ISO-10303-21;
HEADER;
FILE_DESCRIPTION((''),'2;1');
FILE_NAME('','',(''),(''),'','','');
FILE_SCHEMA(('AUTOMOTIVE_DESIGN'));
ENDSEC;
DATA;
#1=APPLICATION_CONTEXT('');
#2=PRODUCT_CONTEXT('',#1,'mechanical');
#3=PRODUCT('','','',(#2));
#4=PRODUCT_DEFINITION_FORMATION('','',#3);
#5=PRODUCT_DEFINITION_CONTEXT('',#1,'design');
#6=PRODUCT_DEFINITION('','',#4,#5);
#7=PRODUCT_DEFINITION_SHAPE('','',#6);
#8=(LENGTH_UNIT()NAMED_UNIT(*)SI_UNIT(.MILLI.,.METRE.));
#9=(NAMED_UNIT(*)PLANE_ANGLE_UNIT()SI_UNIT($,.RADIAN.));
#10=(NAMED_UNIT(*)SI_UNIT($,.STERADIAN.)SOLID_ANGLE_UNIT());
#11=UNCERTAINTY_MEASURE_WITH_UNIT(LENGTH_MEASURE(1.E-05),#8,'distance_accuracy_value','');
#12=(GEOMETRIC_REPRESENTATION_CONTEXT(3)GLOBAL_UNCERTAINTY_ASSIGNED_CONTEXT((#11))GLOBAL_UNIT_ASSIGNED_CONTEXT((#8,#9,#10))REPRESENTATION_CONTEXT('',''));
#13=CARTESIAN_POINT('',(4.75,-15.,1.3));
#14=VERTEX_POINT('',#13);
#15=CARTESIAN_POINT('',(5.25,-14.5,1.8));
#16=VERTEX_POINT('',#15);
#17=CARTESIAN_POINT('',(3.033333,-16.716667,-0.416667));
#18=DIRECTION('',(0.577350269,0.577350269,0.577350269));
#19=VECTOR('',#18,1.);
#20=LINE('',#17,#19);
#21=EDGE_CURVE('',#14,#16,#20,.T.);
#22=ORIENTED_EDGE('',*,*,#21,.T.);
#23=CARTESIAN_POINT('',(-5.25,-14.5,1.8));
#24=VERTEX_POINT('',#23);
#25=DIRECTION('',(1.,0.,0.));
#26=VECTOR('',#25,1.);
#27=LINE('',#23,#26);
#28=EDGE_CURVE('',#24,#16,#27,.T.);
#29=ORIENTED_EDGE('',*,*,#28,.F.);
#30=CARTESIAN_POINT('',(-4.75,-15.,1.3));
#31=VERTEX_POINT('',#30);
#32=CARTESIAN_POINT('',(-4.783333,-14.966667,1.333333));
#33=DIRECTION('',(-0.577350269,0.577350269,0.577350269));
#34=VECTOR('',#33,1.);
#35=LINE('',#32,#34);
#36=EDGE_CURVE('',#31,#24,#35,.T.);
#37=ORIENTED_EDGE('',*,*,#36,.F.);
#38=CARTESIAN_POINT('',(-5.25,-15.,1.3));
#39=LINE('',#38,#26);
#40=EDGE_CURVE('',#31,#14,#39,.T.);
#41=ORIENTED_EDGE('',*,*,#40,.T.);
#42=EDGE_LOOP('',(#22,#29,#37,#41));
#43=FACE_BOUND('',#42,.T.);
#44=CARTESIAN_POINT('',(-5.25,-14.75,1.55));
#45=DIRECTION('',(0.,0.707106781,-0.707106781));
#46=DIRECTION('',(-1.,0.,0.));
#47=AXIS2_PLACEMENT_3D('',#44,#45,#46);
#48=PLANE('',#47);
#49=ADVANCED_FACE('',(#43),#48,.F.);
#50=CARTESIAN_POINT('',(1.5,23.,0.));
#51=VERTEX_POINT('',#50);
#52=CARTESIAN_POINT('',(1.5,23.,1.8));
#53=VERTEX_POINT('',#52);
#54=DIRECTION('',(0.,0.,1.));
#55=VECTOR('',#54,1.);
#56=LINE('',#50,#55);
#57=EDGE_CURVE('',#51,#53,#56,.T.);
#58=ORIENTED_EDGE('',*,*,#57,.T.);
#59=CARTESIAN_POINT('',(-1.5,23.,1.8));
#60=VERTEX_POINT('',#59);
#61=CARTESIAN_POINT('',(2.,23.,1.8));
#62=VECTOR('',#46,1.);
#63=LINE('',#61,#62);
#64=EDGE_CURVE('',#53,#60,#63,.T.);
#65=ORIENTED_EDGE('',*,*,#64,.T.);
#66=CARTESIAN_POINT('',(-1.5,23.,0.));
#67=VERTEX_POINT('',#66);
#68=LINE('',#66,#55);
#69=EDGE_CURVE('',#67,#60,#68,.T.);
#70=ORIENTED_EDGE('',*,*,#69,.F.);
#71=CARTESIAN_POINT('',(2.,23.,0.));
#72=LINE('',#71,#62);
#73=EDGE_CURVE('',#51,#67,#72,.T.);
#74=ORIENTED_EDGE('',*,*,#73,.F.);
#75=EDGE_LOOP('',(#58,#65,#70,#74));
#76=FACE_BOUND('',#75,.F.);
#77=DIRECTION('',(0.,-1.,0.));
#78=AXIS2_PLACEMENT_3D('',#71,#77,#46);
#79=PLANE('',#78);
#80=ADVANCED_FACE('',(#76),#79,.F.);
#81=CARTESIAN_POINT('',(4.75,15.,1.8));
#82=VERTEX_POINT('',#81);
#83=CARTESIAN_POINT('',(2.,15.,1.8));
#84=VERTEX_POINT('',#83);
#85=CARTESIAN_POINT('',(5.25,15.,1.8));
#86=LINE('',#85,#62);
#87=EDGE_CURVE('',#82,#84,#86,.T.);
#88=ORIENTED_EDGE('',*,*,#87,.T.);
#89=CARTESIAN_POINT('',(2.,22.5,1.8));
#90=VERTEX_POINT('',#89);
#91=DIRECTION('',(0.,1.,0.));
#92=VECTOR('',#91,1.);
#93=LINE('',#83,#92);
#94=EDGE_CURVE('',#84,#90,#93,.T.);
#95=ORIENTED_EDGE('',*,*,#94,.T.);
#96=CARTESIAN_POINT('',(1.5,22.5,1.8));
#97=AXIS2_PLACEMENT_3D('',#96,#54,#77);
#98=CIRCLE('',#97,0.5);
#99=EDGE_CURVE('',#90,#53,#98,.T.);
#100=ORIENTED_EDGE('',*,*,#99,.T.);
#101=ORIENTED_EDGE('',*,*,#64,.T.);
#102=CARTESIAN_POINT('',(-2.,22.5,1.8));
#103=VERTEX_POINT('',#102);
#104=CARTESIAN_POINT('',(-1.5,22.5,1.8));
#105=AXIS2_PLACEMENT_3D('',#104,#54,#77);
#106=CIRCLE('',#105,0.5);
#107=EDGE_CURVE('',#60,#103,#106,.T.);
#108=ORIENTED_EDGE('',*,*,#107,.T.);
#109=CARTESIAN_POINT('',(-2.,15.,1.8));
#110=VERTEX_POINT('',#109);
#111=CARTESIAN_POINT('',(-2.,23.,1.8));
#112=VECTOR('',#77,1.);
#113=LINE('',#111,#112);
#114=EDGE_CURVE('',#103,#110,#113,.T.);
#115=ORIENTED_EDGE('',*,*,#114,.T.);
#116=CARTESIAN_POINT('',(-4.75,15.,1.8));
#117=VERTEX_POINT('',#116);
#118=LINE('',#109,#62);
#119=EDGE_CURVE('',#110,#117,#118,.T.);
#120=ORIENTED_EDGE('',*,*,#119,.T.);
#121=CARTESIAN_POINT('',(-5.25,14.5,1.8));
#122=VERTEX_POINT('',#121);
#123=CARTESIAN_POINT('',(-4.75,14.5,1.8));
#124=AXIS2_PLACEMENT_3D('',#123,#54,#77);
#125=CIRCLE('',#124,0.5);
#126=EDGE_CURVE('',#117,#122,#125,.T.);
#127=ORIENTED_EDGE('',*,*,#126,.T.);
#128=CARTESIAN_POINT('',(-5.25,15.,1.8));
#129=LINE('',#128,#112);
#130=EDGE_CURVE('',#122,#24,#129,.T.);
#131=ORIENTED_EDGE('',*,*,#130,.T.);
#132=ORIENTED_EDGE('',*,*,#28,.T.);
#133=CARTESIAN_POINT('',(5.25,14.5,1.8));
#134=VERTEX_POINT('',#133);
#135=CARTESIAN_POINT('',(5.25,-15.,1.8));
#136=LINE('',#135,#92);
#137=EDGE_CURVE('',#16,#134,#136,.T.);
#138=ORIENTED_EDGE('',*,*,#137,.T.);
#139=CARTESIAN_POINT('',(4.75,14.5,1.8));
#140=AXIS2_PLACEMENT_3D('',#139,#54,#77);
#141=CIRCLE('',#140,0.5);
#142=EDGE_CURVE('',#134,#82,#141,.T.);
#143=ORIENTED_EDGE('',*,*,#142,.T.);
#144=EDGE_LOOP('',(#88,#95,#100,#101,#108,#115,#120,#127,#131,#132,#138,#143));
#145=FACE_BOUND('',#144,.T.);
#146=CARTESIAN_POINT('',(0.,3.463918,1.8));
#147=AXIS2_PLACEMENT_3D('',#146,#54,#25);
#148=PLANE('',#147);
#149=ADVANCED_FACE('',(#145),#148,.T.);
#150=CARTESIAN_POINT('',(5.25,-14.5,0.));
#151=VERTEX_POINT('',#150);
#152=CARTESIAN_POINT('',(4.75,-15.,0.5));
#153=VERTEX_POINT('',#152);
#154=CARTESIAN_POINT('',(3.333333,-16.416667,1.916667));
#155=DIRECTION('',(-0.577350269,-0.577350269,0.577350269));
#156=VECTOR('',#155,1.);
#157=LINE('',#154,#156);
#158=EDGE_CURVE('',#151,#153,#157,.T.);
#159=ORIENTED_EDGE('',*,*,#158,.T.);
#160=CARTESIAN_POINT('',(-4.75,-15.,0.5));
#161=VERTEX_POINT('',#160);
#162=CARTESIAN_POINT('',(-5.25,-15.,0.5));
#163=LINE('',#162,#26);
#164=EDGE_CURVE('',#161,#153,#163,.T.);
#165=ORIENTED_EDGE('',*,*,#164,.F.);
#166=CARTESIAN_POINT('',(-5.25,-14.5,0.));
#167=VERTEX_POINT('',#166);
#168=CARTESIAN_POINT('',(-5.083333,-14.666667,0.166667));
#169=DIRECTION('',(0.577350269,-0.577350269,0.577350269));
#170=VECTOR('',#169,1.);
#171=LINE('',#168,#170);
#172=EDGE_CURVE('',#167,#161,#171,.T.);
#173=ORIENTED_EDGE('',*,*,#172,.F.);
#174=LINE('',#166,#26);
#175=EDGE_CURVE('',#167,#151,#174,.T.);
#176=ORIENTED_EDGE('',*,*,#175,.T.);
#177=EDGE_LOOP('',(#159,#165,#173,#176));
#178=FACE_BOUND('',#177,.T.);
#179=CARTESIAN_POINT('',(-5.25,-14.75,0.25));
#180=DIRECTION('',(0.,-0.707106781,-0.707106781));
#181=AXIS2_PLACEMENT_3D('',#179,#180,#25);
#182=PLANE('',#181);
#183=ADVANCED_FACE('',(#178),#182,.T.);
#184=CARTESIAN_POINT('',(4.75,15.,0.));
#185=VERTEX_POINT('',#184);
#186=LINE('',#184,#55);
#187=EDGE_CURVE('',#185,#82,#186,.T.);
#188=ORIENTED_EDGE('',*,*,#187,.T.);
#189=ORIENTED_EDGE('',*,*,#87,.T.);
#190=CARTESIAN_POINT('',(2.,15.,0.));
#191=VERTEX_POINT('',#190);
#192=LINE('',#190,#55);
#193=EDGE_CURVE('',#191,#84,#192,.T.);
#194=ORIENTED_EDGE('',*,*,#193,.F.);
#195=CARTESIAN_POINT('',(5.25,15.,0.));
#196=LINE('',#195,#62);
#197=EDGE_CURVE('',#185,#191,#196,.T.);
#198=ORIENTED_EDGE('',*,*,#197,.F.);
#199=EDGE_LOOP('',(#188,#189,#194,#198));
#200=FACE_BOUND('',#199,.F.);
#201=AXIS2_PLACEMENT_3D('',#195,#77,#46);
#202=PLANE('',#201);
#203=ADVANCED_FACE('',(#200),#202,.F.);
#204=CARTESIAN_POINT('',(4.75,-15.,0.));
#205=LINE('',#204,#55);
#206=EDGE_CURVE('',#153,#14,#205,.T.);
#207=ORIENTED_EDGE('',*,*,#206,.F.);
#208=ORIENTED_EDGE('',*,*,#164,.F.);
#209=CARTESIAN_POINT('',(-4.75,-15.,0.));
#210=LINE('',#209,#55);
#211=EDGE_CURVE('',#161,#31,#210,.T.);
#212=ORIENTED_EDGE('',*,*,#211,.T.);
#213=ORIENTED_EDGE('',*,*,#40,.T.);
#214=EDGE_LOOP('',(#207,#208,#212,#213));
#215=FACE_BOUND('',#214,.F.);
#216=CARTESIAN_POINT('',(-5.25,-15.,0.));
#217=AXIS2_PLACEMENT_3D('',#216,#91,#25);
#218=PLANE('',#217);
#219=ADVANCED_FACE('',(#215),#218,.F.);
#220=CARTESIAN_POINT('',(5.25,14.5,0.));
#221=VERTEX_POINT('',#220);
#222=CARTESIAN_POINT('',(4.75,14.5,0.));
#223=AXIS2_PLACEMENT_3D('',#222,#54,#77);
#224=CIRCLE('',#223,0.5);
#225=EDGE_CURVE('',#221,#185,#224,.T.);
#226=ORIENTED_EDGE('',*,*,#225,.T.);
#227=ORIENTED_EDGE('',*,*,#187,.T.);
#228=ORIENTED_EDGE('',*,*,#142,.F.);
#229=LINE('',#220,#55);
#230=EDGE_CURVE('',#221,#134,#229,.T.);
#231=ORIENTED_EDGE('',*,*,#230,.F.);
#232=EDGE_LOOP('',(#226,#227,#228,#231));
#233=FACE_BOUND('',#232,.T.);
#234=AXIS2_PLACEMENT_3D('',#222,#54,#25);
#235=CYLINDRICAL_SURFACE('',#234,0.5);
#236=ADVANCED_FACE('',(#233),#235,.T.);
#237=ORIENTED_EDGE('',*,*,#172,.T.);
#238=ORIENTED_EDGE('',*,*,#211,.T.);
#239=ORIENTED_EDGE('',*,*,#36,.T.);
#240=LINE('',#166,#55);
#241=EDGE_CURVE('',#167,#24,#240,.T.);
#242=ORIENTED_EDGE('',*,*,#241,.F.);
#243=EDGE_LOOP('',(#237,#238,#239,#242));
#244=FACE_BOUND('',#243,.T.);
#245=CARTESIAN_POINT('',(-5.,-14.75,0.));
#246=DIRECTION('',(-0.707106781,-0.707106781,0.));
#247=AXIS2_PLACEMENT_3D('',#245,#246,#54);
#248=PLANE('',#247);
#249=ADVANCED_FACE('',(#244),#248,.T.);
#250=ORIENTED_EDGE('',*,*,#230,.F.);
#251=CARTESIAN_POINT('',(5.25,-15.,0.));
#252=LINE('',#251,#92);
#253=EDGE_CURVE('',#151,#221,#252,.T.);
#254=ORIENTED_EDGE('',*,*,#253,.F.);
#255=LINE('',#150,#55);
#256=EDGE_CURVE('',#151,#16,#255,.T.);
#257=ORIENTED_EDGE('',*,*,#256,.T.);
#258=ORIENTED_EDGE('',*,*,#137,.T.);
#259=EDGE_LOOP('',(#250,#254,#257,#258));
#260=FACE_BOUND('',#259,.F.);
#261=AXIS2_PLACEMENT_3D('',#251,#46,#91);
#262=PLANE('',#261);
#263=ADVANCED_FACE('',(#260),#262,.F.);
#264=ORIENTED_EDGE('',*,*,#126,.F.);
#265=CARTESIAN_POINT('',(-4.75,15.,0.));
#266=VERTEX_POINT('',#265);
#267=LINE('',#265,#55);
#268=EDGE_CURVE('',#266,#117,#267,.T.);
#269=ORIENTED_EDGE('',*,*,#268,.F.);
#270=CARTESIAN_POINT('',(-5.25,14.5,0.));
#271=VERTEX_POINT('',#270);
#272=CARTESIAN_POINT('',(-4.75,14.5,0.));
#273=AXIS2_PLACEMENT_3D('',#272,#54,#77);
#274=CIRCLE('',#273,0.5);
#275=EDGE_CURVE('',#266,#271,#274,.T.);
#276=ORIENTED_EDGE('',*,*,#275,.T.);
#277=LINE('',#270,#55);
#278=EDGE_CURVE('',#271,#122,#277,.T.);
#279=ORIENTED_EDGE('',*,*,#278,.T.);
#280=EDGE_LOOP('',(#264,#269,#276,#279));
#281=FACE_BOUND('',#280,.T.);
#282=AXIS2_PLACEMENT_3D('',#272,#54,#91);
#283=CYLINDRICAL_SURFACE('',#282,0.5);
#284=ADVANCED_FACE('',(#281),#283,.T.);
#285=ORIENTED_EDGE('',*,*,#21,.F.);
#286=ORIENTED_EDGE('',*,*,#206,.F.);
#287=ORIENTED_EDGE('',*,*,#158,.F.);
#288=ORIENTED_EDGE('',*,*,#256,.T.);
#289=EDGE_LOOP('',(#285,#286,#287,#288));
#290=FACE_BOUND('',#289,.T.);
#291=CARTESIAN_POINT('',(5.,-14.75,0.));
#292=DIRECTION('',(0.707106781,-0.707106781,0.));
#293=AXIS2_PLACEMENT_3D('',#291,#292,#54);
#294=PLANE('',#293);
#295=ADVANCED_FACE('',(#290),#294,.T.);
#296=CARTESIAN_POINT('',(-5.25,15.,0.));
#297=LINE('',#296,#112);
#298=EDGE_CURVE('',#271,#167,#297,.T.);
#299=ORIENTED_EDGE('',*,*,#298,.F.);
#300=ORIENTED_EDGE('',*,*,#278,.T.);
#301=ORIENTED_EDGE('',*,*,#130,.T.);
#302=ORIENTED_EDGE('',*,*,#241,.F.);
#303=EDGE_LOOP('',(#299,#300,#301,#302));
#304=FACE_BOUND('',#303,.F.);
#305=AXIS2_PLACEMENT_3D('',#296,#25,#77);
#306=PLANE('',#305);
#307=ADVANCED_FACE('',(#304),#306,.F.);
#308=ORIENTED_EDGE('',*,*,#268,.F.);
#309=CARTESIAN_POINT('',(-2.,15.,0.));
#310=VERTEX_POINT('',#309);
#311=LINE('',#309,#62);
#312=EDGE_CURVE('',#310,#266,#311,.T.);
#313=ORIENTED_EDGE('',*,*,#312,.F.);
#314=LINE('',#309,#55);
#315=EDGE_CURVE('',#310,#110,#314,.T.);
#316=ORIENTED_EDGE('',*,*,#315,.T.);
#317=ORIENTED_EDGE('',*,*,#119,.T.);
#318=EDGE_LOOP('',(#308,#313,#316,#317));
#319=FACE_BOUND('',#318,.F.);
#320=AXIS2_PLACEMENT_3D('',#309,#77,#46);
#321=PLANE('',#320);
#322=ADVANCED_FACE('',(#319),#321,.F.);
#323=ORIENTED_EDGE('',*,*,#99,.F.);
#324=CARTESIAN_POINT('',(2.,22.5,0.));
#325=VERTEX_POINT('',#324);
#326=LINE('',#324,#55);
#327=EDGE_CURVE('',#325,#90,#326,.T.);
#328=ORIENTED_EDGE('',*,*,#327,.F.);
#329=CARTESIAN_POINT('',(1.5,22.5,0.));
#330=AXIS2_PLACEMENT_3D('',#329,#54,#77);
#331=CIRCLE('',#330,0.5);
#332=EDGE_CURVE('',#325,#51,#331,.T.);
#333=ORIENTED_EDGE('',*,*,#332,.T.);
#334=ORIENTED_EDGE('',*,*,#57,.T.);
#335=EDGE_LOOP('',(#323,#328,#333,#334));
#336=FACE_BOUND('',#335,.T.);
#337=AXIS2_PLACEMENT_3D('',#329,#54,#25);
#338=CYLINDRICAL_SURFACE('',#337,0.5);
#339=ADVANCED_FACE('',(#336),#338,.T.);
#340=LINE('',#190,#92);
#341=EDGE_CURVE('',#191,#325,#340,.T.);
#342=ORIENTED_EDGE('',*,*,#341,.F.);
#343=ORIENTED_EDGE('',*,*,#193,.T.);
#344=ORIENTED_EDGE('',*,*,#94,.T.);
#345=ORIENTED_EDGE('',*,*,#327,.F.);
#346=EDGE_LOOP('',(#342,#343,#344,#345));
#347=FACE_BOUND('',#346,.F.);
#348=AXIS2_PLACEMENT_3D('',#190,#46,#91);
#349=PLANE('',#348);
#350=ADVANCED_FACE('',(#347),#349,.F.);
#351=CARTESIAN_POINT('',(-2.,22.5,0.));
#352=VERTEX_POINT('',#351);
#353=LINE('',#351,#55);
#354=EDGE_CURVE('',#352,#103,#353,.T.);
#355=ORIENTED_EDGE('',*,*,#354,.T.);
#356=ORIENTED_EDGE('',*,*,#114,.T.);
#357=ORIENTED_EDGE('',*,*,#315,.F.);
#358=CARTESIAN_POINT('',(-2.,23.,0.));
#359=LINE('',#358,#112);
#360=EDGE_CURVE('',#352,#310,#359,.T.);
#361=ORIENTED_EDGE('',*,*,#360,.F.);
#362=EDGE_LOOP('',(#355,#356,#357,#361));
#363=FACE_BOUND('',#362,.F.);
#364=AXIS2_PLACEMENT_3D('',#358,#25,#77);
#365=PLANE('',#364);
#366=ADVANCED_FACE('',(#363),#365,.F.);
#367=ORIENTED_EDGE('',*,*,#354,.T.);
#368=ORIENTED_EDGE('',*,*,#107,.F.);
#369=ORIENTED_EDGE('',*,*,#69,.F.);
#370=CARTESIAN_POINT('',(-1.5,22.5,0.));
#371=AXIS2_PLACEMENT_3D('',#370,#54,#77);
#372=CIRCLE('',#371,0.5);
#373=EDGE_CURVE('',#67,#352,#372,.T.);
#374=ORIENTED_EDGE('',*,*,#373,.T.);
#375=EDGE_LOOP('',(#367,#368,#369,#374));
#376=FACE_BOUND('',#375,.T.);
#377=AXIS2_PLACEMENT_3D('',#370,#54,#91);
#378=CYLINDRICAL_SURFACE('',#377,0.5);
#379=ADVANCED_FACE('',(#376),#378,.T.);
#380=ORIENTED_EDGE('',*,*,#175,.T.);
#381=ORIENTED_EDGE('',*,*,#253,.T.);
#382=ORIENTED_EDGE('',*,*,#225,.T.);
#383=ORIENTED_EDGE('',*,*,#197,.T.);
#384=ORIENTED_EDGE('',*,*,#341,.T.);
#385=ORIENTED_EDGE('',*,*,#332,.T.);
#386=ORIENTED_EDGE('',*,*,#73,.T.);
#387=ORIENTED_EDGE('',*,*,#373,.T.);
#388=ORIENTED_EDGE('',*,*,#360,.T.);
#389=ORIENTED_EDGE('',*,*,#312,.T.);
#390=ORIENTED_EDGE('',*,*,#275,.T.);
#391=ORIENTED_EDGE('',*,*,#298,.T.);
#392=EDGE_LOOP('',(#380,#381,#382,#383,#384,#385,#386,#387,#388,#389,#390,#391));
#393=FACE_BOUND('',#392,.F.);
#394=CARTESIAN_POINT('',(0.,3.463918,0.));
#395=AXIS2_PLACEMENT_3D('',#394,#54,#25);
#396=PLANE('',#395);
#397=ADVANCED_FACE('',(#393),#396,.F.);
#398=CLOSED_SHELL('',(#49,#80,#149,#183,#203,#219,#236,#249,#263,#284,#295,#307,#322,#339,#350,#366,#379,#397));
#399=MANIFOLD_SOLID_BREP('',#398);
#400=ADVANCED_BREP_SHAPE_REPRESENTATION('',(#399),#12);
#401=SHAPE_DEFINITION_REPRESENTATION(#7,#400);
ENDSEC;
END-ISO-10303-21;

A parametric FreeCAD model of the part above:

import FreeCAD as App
import Part
import Sketcher

V = App.Vector
Q = App.Units.Quantity


def edges_at(feature, points):
    """Names of the edges that pass closest to the given points."""
    edges = feature.Shape.Edges
    near = lambda p: min(range(len(edges)), key=lambda i: edges[i].distToShape(Part.Vertex(*p))[0])
    return sorted({f"Edge{near(p) + 1}" for p in points})

doc = App.newDocument("Part")
body = doc.addObject("PartDesign::Body", "Body")

# Sketch on XY plane
sketch1 = body.newObject("Sketcher::SketchObject", "Sketch")
sketch1.AttachmentSupport = (doc.getObject("XY_Plane"), [""])
sketch1.MapMode = "FlatFace"
sketch1.addGeometry(Part.LineSegment(V(-5.2, -15, 0), V(5.2, -15, 0)), False)
sketch1.addGeometry(Part.LineSegment(V(5.2, -15, 0), V(5.2, 15, 0)), False)
sketch1.addGeometry(Part.LineSegment(V(5.2, 15, 0), V(2, 15, 0)), False)
sketch1.addGeometry(Part.LineSegment(V(2, 15, 0), V(2, 23, 0)), False)
sketch1.addGeometry(Part.LineSegment(V(2, 23, 0), V(-2, 23, 0)), False)
sketch1.addGeometry(Part.LineSegment(V(-2, 23, 0), V(-2, 15, 0)), False)
sketch1.addGeometry(Part.LineSegment(V(-2, 15, 0), V(-5.2, 15, 0)), False)
sketch1.addGeometry(Part.LineSegment(V(-5.2, 15, 0), V(-5.2, -15, 0)), False)
sketch1.addConstraint(Sketcher.Constraint("Coincident", 0, 2, 1, 1))
sketch1.addConstraint(Sketcher.Constraint("Coincident", 1, 2, 2, 1))
sketch1.addConstraint(Sketcher.Constraint("Coincident", 2, 2, 3, 1))
sketch1.addConstraint(Sketcher.Constraint("Coincident", 3, 2, 4, 1))
sketch1.addConstraint(Sketcher.Constraint("Coincident", 4, 2, 5, 1))
sketch1.addConstraint(Sketcher.Constraint("Coincident", 5, 2, 6, 1))
sketch1.addConstraint(Sketcher.Constraint("Coincident", 6, 2, 7, 1))
sketch1.addConstraint(Sketcher.Constraint("Coincident", 7, 2, 0, 1))
sketch1.addConstraint(Sketcher.Constraint("Horizontal", 0))
sketch1.addConstraint(Sketcher.Constraint("Vertical", 1))
sketch1.addConstraint(Sketcher.Constraint("Horizontal", 2))
sketch1.addConstraint(Sketcher.Constraint("Vertical", 3))
sketch1.addConstraint(Sketcher.Constraint("Horizontal", 4))
sketch1.addConstraint(Sketcher.Constraint("Vertical", 5))
sketch1.addConstraint(Sketcher.Constraint("Horizontal", 6))
sketch1.addConstraint(Sketcher.Constraint("Vertical", 7))
sketch1.addConstraint(Sketcher.Constraint("Symmetric", 0, 2, 6, 2, -1, 1))
sketch1.addConstraint(Sketcher.Constraint("Symmetric", 2, 2, 5, 2, -2))
sketch1.addConstraint(Sketcher.Constraint("DistanceX", 4, 2, 4, 1, Q("4 mm")))
sketch1.addConstraint(Sketcher.Constraint("DistanceY", 1, 1, 1, 2, Q("30 mm")))
sketch1.addConstraint(Sketcher.Constraint("DistanceY", 3, 1, 3, 2, Q("8 mm")))
sketch1.addConstraint(Sketcher.Constraint("DistanceX", 0, 1, 0, 2, Q("10.5 mm")))
pad1 = body.newObject("PartDesign::Pad", "Pad")
pad1.Profile = sketch1
pad1.Length = 1.8
doc.recompute()

fillet = body.newObject("PartDesign::Fillet", "Fillet")
fillet.Base = (pad1, edges_at(pad1, [
    (2, 23, 0.9),
    (-2, 23, 0.9),
    (5.25, 15, 0.9),
    (-5.25, 15, 0.9),
]))
fillet.Radius = 0.5
doc.recompute()

chamfer = body.newObject("PartDesign::Chamfer", "Chamfer")
chamfer.Base = (fillet, edges_at(fillet, [
    (0, -15, 0),
    (0, -15, 1.8),
    (5.25, -15, 0.9),
    (-5.25, -15, 0.9),
]))
chamfer.Size = 0.5

doc.recompute()
